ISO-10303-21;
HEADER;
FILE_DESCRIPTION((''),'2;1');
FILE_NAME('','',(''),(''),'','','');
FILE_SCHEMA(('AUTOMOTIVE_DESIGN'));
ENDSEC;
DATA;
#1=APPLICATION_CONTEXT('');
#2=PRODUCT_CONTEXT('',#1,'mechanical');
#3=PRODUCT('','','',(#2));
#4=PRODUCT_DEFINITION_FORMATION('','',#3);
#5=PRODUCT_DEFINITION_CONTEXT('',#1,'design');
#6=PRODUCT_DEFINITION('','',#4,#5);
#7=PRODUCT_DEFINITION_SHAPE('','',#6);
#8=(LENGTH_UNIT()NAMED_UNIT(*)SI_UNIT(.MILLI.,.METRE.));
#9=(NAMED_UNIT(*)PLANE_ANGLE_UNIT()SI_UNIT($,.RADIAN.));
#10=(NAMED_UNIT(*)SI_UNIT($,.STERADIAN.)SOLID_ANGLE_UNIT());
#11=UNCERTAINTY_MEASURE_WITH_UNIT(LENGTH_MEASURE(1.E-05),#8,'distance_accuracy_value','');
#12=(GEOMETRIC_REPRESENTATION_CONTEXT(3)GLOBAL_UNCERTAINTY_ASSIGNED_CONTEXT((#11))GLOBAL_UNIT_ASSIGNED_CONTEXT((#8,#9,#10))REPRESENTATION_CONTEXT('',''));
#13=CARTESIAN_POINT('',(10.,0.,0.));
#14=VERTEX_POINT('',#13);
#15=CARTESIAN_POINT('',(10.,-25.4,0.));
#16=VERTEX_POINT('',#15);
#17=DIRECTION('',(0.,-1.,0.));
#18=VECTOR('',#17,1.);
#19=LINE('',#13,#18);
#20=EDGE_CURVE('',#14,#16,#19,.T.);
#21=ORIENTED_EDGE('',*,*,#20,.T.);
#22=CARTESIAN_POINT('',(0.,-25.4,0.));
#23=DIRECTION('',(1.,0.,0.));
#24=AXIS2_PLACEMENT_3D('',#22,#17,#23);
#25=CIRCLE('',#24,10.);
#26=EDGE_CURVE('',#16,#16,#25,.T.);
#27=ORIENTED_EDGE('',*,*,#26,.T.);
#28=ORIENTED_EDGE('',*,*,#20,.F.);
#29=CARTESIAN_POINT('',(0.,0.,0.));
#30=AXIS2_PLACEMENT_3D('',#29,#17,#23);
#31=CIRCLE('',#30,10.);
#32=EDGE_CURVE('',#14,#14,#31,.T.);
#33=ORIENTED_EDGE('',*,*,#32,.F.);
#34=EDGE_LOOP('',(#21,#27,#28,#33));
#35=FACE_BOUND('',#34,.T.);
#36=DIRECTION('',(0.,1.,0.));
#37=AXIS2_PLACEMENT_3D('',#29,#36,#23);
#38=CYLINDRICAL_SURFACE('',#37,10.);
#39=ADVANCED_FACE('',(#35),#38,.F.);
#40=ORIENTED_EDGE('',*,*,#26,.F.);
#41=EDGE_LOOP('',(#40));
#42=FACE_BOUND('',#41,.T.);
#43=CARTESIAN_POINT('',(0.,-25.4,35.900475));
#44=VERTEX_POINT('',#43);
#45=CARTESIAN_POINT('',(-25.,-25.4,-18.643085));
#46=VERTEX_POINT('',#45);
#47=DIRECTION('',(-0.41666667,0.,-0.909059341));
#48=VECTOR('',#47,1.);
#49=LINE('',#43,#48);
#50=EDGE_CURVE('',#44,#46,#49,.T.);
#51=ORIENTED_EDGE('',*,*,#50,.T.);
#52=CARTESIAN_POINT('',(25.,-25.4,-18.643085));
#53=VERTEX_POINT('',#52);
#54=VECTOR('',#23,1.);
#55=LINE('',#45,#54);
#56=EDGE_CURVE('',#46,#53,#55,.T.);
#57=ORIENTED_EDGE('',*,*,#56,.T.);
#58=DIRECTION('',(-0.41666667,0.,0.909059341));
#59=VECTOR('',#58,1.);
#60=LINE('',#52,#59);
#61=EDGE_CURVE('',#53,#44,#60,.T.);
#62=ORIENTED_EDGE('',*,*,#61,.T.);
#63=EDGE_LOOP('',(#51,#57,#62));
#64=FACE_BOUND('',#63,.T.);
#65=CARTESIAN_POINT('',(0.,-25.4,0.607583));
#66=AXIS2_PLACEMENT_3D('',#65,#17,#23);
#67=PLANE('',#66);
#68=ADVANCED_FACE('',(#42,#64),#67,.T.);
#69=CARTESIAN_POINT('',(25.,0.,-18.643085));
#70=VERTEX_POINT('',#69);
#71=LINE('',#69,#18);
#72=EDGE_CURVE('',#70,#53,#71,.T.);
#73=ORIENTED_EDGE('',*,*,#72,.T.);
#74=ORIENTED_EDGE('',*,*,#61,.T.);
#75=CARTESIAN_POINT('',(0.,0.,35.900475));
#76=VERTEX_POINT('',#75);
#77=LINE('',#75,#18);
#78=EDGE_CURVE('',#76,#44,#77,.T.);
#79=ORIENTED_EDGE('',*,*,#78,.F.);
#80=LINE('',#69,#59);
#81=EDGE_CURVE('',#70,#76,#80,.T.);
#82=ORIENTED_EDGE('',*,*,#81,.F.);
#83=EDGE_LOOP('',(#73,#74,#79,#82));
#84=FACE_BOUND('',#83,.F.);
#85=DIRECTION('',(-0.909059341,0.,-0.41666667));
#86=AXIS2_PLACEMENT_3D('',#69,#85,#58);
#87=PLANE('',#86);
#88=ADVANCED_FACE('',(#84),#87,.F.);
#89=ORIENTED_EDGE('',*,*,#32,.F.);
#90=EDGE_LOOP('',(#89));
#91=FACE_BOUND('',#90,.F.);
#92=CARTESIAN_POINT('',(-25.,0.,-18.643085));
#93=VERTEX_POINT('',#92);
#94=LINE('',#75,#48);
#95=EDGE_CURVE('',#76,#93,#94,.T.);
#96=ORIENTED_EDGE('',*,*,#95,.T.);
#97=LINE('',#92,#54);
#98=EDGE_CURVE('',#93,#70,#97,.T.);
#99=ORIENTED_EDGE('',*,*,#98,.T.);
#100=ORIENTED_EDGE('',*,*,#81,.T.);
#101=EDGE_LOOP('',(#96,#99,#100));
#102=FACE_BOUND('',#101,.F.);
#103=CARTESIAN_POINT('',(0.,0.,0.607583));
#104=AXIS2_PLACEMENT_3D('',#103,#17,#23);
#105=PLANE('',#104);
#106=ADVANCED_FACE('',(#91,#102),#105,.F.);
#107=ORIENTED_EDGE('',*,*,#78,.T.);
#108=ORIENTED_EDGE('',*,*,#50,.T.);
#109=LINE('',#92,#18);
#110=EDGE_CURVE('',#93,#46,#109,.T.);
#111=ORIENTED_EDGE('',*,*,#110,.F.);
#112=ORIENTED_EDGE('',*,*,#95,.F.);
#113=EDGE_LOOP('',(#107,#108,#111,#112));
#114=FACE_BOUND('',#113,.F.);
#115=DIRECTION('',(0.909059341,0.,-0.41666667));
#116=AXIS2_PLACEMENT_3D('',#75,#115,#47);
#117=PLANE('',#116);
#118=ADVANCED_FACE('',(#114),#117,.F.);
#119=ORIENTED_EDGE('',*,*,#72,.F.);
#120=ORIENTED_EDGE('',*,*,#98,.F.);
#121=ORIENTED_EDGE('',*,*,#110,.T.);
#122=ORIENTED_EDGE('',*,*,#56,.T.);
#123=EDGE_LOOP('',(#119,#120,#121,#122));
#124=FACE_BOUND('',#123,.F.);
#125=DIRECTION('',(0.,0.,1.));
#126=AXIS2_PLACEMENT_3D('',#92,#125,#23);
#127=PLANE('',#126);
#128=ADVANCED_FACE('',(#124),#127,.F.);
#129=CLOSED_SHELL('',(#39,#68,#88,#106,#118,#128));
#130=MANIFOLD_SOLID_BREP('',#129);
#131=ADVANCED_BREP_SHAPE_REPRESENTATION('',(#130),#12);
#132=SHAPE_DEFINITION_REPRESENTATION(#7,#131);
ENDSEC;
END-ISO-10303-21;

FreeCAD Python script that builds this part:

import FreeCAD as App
import Part
import Sketcher
Q = App.Units.Quantity

doc = App.newDocument("Part")
body = doc.addObject("PartDesign::Body", "Body")

# Sketch on XZ plane
sketch1 = body.newObject("Sketcher::SketchObject", "Sketch")
sketch1.AttachmentSupport = (doc.getObject("XZ_Plane"), [""])
sketch1.MapMode = "FlatFace"
sketch1.addGeometry(Part.LineSegment(App.Vector(0, 36, 0), App.Vector(-25, -19, 0)), False)
sketch1.addGeometry(Part.LineSegment(App.Vector(-25, -19, 0), App.Vector(25, -19, 0)), False)
sketch1.addGeometry(Part.LineSegment(App.Vector(25, -19, 0), App.Vector(0, 36, 0)), False)
sketch1.addGeometry(Part.Circle(App.Vector(0, 0, 0), App.Vector(0, 0, 1), 10), False)
sketch1.addConstraint(Sketcher.Constraint("Coincident", 0, 2, 1, 1))
sketch1.addConstraint(Sketcher.Constraint("Coincident", 1, 2, 2, 1))
sketch1.addConstraint(Sketcher.Constraint("Coincident", 2, 2, 0, 1))
sketch1.addConstraint(Sketcher.Constraint("Horizontal", 1))
sketch1.addConstraint(Sketcher.Constraint("Coincident", 3, 3, -1, 1))
sketch1.addConstraint(Sketcher.Constraint("PointOnObject", 2, 2, -2))
sketch1.addConstraint(Sketcher.Constraint("Equal", 0, 2))
sketch1.addConstraint(Sketcher.Constraint("Diameter", 3, Q("20 mm")))
sketch1.addConstraint(Sketcher.Constraint("DistanceX", 1, 1, 1, 2, Q("50 mm")))
sketch1.addConstraint(Sketcher.Constraint("Distance", 0, Q("59.999999 mm")))
sketch1.addConstraint(Sketcher.Constraint("DistanceY", 0, 2, -1, 1, Q("18.643085 mm")))
pad1 = body.newObject("PartDesign::Pad", "Pad")
pad1.Profile = sketch1
pad1.Length = 25.4

doc.recompute()
